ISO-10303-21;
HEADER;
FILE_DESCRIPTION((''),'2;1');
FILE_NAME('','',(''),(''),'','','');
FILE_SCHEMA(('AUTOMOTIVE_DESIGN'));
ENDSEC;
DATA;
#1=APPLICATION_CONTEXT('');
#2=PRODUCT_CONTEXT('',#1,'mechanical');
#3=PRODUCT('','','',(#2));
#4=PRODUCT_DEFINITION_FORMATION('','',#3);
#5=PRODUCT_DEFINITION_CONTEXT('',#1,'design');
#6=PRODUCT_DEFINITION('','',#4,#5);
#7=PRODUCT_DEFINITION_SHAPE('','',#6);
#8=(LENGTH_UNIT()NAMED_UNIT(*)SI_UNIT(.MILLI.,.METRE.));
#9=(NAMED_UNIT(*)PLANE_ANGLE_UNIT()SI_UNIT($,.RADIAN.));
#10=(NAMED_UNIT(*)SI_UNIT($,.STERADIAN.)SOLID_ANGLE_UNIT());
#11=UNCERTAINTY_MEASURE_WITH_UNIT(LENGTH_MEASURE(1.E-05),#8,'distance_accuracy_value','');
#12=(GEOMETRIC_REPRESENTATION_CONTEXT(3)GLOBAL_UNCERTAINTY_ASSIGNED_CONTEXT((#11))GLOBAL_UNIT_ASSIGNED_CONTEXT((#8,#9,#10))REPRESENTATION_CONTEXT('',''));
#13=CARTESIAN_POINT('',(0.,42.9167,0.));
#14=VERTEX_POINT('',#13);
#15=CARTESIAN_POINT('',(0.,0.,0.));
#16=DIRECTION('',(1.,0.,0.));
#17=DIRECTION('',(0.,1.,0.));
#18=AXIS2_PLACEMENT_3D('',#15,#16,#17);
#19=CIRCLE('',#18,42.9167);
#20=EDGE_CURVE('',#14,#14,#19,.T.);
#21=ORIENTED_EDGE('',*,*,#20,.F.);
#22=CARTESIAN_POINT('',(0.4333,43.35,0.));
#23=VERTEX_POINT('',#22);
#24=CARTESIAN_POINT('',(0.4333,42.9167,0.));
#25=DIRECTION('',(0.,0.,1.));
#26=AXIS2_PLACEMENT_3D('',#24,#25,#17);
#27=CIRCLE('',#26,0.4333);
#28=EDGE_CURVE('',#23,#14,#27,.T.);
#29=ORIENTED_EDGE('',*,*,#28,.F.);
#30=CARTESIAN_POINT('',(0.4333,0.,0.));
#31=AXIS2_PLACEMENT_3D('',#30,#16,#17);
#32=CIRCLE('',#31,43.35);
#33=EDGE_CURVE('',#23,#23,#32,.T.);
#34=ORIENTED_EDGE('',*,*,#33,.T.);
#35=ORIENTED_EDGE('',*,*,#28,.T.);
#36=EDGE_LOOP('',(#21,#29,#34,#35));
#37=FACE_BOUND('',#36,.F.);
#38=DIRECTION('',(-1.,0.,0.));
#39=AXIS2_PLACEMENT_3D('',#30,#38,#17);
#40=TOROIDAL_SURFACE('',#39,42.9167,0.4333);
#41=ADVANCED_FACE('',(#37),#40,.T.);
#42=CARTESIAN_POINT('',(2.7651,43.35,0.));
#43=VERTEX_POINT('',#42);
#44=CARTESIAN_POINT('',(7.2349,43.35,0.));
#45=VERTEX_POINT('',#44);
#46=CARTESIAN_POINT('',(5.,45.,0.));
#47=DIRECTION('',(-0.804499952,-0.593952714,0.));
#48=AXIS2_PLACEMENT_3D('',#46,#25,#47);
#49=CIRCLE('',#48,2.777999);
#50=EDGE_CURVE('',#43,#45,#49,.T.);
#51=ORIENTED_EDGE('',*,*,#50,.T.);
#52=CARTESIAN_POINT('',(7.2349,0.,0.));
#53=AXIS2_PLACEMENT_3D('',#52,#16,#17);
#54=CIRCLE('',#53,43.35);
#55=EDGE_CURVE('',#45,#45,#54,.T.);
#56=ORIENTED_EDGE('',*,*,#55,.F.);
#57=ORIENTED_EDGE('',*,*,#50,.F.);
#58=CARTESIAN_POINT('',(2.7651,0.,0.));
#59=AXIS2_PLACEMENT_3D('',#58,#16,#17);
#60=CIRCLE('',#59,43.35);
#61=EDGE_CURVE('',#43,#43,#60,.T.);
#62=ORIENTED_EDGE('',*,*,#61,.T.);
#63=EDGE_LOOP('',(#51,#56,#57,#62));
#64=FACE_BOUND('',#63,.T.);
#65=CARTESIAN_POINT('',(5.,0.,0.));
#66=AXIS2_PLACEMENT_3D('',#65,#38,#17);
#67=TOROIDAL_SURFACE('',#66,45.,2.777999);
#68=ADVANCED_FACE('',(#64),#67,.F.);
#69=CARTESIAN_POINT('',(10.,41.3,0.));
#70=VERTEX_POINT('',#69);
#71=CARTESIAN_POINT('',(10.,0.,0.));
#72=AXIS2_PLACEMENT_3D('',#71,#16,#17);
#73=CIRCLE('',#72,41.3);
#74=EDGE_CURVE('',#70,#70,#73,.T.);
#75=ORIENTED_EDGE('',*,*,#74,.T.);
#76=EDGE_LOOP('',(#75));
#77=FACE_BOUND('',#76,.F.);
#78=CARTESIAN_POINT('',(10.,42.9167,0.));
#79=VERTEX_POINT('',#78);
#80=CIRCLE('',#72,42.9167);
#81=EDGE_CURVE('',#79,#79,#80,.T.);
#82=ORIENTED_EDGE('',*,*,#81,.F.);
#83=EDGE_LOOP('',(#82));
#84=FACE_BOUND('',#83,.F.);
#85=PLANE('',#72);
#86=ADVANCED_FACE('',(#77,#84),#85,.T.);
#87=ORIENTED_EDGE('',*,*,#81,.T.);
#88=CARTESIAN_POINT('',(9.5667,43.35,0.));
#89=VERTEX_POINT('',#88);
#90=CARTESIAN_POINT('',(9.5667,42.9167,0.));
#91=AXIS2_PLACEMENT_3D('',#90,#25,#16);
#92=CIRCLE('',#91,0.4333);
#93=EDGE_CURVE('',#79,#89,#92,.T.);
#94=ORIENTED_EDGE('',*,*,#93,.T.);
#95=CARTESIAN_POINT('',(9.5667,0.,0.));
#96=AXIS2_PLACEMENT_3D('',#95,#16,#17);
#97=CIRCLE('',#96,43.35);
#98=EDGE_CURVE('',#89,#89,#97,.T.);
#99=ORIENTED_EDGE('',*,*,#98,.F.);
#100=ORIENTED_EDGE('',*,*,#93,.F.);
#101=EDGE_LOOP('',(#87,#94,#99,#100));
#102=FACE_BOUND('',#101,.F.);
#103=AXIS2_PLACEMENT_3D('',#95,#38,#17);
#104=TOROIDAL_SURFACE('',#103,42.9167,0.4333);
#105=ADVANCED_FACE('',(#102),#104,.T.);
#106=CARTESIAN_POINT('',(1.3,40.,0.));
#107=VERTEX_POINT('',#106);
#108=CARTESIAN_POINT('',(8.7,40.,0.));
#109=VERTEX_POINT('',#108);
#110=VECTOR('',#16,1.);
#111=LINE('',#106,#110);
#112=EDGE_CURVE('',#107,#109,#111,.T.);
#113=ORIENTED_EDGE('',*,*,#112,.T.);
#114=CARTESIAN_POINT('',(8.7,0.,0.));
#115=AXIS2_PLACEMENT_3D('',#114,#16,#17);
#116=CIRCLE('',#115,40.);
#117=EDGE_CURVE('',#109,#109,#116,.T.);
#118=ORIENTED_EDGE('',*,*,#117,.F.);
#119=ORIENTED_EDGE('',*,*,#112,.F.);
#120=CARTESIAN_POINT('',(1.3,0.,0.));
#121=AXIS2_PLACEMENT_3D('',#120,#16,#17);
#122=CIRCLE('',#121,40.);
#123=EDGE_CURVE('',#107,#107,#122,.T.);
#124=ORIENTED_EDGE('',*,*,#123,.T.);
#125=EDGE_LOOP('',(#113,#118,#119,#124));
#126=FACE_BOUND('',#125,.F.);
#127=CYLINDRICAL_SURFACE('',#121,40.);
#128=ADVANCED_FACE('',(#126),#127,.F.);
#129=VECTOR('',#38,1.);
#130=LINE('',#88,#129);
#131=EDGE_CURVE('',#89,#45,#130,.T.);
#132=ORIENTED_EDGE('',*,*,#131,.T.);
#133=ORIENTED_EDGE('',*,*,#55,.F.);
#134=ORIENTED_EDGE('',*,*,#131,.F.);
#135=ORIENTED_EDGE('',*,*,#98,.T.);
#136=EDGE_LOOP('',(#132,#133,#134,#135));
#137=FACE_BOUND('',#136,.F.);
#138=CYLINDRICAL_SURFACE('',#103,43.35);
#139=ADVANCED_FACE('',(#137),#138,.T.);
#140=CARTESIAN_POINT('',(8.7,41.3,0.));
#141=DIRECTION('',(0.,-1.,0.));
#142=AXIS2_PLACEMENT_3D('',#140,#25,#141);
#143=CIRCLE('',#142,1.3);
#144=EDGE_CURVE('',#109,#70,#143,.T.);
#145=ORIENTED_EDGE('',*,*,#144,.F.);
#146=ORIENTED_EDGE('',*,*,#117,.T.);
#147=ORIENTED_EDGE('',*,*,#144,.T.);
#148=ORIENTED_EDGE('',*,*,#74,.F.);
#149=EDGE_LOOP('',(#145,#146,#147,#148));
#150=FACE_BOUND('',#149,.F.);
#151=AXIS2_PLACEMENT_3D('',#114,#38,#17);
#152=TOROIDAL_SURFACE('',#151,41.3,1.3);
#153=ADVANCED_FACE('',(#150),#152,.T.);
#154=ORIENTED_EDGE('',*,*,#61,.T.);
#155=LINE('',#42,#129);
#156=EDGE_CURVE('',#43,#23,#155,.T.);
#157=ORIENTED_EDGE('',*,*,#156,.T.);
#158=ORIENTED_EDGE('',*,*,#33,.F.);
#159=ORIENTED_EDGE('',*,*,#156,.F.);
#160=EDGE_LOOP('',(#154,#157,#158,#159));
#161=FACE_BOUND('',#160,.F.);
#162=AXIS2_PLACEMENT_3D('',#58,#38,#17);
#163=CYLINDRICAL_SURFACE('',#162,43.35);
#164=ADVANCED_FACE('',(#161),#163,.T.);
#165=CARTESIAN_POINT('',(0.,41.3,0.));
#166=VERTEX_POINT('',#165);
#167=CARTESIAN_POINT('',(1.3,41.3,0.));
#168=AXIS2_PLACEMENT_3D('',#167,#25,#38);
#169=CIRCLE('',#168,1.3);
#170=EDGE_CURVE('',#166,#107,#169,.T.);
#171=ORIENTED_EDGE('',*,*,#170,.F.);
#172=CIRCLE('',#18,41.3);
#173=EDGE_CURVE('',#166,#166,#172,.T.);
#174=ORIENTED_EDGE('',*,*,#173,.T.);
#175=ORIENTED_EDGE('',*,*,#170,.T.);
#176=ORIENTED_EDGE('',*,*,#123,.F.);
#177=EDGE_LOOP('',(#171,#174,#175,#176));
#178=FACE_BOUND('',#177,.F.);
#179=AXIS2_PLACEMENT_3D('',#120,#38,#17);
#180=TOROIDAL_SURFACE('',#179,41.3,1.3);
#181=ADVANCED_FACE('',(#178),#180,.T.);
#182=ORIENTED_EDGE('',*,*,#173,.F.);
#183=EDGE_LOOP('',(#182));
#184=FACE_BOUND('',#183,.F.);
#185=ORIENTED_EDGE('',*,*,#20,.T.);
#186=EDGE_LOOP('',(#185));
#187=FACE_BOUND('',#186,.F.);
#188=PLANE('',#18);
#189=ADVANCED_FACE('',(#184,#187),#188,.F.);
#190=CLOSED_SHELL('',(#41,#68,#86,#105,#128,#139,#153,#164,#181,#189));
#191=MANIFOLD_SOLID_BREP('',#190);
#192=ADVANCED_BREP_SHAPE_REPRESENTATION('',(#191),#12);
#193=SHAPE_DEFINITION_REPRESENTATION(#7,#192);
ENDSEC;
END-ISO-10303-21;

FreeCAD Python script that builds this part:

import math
import FreeCAD as App
import Part
import Sketcher
from FreeCAD import Vector

doc = App.newDocument("Part")
body = doc.addObject("PartDesign::Body", "Body")

sketch1 = body.newObject("Sketcher::SketchObject", "Sketch")
sketch1.AttachmentSupport = (doc.getObject("XY_Plane"), [""])
sketch1.MapMode = "FlatFace"
sketch1.addGeometry(Part.LineSegment(Vector(0, 42.9167, 0), Vector(0, 41.3, 0)), False)
sketch1.addGeometry(Part.ArcOfCircle(Part.Circle(Vector(1.3, 41.3, 0), Vector(0, 0, 1), 1.3), math.radians(180), math.radians(270)), False)
sketch1.addGeometry(Part.LineSegment(Vector(1.3, 40, 0), Vector(8.7, 40, 0)), False)
sketch1.addGeometry(Part.ArcOfCircle(Part.Circle(Vector(8.7, 41.3, 0), Vector(0, 0, 1), 1.3), math.radians(-90), math.radians(0)), False)
sketch1.addGeometry(Part.LineSegment(Vector(10, 41.3, 0), Vector(10, 42.9167, 0)), False)
sketch1.addGeometry(Part.ArcOfCircle(Part.Circle(Vector(9.5667, 42.9167, 0), Vector(0, 0, 1), 0.4333), math.radians(0), math.radians(90)), False)
sketch1.addGeometry(Part.LineSegment(Vector(9.5667, 43.35, 0), Vector(7.2349, 43.35, 0)), False)
sketch1.addGeometry(Part.ArcOfCircle(Part.Circle(Vector(5, 45, 0), Vector(0, 0, 1), 2.777999), math.radians(-143.561991), math.radians(-36.438009)), False)
sketch1.addGeometry(Part.LineSegment(Vector(2.7651, 43.35, 0), Vector(0.4333, 43.35, 0)), False)
sketch1.addGeometry(Part.ArcOfCircle(Part.Circle(Vector(0.4333, 42.9167, 0), Vector(0, 0, 1), 0.4333), math.radians(90), math.radians(180)), False)
sketch1.addConstraint(Sketcher.Constraint("Tangent", 0, 2, 1, 1))
sketch1.addConstraint(Sketcher.Constraint("Tangent", 1, 2, 2, 1))
sketch1.addConstraint(Sketcher.Constraint("Tangent", 2, 2, 3, 1))
sketch1.addConstraint(Sketcher.Constraint("Tangent", 3, 2, 4, 1))
sketch1.addConstraint(Sketcher.Constraint("Tangent", 4, 2, 5, 1))
sketch1.addConstraint(Sketcher.Constraint("Tangent", 5, 2, 6, 1))
sketch1.addConstraint(Sketcher.Constraint("Coincident", 6, 2, 7, 2))
sketch1.addConstraint(Sketcher.Constraint("Coincident", 7, 1, 8, 1))
sketch1.addConstraint(Sketcher.Constraint("Tangent", 8, 2, 9, 1))
sketch1.addConstraint(Sketcher.Constraint("Tangent", 9, 2, 0, 1))
sketch1.addConstraint(Sketcher.Constraint("Vertical", 0))
sketch1.addConstraint(Sketcher.Constraint("Horizontal", 2))
sketch1.addConstraint(Sketcher.Constraint("Vertical", 4))
sketch1.addConstraint(Sketcher.Constraint("Horizontal", 6))
sketch1.addConstraint(Sketcher.Constraint("Horizontal", 8))
sketch1.addConstraint(Sketcher.Constraint("Equal", 1, 3))
sketch1.addConstraint(Sketcher.Constraint("Equal", 5, 9))
sketch1.addConstraint(Sketcher.Constraint("PointOnObject", 0, 2, -2))
sketch1.addConstraint(Sketcher.Constraint("Horizontal", 5, 3, 9, 3))
sketch1.addConstraint(Sketcher.Constraint("Equal", 6, 8))
sketch1.addConstraint(Sketcher.Constraint("Radius", 1, 1.3))
sketch1.addConstraint(Sketcher.Constraint("DistanceX", 2, 1, 2, 2, 7.4))
sketch1.addConstraint(Sketcher.Constraint("DistanceY", -1, 1, 7, 3, 45.0))
sketch1.addConstraint(Sketcher.Constraint("DistanceY", -1, 1, 1, 2, 40.0))
sketch1.addConstraint(Sketcher.Constraint("Radius", 7, 2.778))
sketch1.addConstraint(Sketcher.Constraint("Radius", 5, 0.4333))
sketch1.addConstraint(Sketcher.Constraint("DistanceY", -1, 1, 5, 2, 43.35))
revolution = body.newObject("PartDesign::Revolution", "Revolution")
revolution.Profile = sketch1
revolution.ReferenceAxis = (sketch1, ["H_Axis"])
revolution.Angle = 360

doc.recompute()
